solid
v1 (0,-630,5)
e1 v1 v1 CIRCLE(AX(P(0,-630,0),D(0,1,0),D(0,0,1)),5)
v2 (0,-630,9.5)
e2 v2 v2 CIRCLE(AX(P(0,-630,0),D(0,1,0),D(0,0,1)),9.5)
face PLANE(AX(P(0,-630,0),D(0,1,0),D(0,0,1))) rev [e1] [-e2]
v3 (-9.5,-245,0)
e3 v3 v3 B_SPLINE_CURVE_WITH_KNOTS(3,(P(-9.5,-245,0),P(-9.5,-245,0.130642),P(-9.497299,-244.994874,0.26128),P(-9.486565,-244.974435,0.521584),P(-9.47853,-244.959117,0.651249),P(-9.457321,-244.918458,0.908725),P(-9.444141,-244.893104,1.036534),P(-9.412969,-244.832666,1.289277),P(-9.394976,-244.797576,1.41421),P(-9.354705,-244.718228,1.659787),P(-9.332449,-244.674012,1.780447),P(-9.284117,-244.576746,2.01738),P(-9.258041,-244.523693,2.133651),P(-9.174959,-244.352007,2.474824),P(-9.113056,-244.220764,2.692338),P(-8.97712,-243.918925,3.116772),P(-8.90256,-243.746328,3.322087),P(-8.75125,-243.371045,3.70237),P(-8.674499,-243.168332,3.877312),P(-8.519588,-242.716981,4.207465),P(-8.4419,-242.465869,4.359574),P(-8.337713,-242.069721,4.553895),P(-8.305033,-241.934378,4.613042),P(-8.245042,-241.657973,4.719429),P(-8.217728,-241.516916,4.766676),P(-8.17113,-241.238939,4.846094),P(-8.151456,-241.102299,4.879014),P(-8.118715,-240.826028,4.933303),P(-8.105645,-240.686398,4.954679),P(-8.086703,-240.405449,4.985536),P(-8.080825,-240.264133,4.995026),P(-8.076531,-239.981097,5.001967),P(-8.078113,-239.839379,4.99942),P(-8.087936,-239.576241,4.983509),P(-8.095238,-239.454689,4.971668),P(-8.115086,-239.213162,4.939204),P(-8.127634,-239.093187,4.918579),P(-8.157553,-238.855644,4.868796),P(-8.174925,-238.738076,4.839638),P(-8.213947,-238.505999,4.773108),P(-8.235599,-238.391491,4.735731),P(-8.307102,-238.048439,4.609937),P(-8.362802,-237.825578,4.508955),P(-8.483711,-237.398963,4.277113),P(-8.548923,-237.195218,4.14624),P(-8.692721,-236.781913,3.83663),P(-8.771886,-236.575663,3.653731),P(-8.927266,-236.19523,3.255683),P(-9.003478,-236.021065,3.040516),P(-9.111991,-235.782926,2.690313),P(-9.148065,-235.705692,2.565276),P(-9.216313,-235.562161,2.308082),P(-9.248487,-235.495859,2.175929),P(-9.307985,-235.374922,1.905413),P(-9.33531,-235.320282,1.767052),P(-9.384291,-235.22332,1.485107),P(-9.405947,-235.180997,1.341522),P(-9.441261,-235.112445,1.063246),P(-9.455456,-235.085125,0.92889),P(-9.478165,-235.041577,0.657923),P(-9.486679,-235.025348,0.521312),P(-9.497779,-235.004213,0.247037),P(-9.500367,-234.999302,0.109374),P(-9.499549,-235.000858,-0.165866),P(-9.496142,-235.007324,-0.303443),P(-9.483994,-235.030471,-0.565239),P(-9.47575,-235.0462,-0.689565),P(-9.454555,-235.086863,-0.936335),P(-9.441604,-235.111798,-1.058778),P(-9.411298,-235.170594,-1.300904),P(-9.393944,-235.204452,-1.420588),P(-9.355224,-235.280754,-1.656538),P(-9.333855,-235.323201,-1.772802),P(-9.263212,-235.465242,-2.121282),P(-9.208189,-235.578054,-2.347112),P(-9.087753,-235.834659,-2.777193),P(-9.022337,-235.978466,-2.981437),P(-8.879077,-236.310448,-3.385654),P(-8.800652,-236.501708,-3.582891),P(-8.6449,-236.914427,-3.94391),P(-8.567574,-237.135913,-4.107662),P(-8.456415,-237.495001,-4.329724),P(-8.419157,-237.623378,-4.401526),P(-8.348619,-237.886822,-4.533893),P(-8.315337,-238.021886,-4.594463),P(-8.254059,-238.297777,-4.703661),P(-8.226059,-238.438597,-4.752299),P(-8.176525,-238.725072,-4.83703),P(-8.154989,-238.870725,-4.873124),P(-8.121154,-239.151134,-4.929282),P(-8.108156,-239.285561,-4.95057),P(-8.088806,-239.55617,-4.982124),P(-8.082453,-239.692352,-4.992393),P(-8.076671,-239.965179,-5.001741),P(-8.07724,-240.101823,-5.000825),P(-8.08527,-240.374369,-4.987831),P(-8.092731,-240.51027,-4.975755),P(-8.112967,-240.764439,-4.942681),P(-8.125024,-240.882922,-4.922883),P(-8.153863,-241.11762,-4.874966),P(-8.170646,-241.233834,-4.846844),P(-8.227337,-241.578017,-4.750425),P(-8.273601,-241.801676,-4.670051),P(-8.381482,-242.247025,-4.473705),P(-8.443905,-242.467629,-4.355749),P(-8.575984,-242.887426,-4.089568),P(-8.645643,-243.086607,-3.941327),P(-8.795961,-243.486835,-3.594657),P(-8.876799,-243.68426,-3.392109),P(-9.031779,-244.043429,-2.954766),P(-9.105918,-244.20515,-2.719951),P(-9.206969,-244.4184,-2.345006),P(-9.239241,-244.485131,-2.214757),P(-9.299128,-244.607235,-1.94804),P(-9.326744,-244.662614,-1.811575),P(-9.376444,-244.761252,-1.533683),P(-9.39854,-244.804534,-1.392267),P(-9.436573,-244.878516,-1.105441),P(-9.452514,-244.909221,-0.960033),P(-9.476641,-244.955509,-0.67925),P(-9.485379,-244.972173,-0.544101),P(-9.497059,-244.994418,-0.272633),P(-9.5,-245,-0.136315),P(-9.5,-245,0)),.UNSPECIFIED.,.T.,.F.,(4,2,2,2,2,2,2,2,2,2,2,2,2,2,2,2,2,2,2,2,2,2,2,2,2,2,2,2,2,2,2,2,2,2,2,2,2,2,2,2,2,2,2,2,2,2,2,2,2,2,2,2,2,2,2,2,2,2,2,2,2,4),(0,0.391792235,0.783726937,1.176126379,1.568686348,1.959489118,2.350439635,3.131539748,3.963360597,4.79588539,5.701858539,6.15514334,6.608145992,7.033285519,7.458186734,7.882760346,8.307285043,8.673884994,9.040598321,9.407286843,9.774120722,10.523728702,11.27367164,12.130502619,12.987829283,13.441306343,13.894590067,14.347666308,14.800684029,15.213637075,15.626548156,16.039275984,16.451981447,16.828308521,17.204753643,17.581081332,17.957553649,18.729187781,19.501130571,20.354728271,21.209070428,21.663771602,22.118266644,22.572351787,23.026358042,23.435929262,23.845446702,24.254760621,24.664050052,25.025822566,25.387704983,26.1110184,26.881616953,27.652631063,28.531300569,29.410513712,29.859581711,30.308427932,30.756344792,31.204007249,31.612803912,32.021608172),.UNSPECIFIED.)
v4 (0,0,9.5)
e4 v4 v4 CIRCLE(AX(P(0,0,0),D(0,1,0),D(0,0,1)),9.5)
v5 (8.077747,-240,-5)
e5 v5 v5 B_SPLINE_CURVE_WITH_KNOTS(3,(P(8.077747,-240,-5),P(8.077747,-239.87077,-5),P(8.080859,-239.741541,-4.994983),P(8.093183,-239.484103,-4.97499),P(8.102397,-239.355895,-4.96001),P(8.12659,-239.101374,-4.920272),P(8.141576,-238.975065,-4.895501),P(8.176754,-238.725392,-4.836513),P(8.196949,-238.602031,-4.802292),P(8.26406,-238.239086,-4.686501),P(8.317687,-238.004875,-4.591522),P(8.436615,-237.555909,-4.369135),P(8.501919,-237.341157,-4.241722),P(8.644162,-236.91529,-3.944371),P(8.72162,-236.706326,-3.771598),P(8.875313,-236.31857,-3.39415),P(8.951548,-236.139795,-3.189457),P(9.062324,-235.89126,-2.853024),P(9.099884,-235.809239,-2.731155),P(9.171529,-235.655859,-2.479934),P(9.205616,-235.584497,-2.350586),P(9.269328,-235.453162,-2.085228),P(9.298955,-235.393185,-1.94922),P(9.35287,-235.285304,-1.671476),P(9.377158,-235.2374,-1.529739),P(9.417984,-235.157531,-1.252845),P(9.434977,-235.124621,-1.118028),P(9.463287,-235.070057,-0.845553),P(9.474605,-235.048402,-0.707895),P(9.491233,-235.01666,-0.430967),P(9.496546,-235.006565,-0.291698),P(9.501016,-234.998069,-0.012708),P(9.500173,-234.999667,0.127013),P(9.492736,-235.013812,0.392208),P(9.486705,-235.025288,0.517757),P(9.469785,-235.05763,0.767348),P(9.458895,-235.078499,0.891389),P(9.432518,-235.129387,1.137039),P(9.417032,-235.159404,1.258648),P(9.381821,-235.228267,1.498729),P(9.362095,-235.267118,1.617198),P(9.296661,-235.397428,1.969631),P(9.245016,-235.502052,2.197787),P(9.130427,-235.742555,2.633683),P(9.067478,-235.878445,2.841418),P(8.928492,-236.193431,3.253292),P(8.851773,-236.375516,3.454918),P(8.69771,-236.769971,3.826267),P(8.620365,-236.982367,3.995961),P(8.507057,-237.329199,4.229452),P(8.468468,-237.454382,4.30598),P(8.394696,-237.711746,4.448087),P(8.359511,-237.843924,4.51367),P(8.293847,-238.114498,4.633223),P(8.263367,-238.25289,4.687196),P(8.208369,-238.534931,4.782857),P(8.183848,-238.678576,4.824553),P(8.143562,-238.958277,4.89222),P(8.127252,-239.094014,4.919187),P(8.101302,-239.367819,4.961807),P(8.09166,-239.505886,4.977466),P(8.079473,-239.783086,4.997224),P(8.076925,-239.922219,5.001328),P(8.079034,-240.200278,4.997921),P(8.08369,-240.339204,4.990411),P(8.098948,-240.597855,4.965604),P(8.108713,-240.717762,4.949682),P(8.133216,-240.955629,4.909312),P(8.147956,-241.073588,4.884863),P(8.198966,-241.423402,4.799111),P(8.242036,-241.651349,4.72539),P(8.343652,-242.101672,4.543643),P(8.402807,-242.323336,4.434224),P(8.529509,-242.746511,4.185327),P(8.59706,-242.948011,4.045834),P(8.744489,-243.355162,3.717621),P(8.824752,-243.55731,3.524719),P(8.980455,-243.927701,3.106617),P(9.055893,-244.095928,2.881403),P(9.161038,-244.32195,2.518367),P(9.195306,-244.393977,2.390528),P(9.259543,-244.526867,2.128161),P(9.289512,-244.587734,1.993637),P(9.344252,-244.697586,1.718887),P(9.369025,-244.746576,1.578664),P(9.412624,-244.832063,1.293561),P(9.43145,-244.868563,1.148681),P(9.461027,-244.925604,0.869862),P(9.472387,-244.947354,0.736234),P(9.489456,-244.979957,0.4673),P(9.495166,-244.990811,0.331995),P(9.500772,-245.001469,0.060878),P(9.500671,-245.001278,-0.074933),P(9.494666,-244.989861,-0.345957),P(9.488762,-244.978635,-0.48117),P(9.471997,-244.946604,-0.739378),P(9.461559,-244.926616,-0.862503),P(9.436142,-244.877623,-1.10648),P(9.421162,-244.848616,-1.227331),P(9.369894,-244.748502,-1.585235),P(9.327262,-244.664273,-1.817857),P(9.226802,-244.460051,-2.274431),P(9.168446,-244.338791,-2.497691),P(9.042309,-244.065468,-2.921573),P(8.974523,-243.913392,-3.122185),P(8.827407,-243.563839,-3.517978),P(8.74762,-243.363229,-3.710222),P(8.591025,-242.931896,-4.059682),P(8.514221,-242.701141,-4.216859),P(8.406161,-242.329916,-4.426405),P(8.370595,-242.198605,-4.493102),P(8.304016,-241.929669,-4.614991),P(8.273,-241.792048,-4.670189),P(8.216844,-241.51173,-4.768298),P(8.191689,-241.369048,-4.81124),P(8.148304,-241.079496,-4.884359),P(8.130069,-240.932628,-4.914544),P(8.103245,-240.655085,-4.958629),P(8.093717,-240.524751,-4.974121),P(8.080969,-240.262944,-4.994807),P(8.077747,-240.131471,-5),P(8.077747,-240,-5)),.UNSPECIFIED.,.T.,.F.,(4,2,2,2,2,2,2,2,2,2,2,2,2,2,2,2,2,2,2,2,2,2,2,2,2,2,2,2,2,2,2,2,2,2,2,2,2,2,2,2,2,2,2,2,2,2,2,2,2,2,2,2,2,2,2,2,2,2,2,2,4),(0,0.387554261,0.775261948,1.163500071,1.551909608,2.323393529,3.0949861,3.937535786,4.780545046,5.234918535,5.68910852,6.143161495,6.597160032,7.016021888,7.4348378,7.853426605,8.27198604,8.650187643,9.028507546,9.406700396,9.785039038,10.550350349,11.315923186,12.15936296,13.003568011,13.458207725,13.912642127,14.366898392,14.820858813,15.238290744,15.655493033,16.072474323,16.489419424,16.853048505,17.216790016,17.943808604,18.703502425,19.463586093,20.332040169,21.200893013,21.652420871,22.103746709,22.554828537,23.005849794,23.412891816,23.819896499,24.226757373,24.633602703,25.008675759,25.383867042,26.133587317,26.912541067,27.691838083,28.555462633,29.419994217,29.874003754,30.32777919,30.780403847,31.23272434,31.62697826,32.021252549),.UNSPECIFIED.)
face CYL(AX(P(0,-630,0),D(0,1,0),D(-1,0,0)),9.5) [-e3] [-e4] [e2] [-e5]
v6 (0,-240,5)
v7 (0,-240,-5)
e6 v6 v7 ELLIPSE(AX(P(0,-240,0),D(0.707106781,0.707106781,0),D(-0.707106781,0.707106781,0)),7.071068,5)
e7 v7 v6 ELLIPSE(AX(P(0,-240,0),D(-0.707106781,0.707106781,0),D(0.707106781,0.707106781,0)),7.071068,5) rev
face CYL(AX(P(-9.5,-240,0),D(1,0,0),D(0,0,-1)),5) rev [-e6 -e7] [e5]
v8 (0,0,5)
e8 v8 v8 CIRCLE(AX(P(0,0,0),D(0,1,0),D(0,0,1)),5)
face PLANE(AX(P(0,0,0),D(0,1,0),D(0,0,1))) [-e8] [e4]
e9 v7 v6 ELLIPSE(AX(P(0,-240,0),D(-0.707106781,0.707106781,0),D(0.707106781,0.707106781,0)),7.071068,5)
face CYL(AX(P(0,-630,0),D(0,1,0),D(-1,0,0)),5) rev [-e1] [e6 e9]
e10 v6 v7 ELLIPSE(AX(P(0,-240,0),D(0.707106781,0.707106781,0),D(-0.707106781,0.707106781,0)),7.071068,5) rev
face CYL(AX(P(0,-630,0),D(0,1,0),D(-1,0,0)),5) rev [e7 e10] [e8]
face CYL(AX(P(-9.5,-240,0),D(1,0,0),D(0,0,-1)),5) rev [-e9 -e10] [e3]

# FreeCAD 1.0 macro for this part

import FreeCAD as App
import Part
import Sketcher

V = App.Vector
Q = App.Units.Quantity

doc = App.newDocument("Part")
params = doc.addObject("Spreadsheet::Sheet", "Params")
for row, (alias, value) in enumerate([
    ("sketch1_diameter", "19 mm"),
    ("sketch1_diameter2", "10 mm"),
    ("sketch2_height", "630 mm"),
    ("sketch3_diameter", "10 mm"),
], start=1):
    params.set(f"A{row}", alias)
    params.set(f"B{row}", "=" + value)
    params.setAlias(f"B{row}", alias)

body = doc.addObject("PartDesign::Body", "Body")

# Sketch on XZ plane
sketch1 = doc.addObject("Sketcher::SketchObject", "Sketch")
body.addObject(sketch1)
sketch1.AttachmentSupport = (doc.XZ_Plane, [""])
sketch1.MapMode = "FlatFace"
sketch1.addGeometry([
    Part.Circle(V(0, 0, 0), V(0, 0, 1), 9.5),
    Part.Circle(V(0, 0, 0), V(0, 0, 1), 5),
], False)
sketch1.addConstraint([
    Sketcher.Constraint("Coincident", 0, 3, -1, 1),
    Sketcher.Constraint("Coincident", 1, 3, -1, 1),
    Sketcher.Constraint("Diameter", 0, Q("19 mm")),
    Sketcher.Constraint("Diameter", 1, Q("10 mm")),
])
sketch1.setExpression("Constraints[2]", "Params.sketch1_diameter")
sketch1.setExpression("Constraints[3]", "Params.sketch1_diameter2")

# Sketch on XY plane
sketch2 = doc.addObject("Sketcher::SketchObject", "Sketch001")
body.addObject(sketch2)
sketch2.AttachmentSupport = (doc.XY_Plane, [""])
sketch2.MapMode = "FlatFace"
sketch2.addGeometry(Part.LineSegment(V(0, 0, 0), V(0, -630, 0)), False)
sketch2.addConstraint([
    Sketcher.Constraint("Vertical", 0),
    Sketcher.Constraint("Coincident", 0, 1, -1, 1),
    Sketcher.Constraint("DistanceY", 0, 2, 0, 1, Q("630 mm")),
])
sketch2.setExpression("Constraints[2]", "Params.sketch2_height")
doc.recompute()

additivepipe = doc.addObject("PartDesign::AdditivePipe", "AdditivePipe")
body.addObject(additivepipe)
additivepipe.Profile = sketch1
additivepipe.Spine = (sketch2, ["Edge1"])

# Sketch on YZ plane
sketch3 = doc.addObject("Sketcher::SketchObject", "Sketch002")
body.addObject(sketch3)
sketch3.AttachmentSupport = (doc.YZ_Plane, [""])
sketch3.MapMode = "FlatFace"
sketch3.addGeometry(Part.Circle(V(-240, 0, 0), V(0, 0, 1), 5), False)
sketch3.addConstraint([
    Sketcher.Constraint("PointOnObject", 0, 3, -1),
    Sketcher.Constraint("Diameter", 0, Q("10 mm")),
    Sketcher.Constraint("DistanceX", 0, 3, -1, 1, Q("240 mm")),
])
sketch3.setExpression("Constraints[1]", "Params.sketch3_diameter")
pocket1 = doc.addObject("PartDesign::Pocket", "Pocket")
body.addObject(pocket1)
pocket1.Profile = sketch3
pocket1.Type = "ThroughAll"
pocket1.Midplane = True

doc.recompute()
